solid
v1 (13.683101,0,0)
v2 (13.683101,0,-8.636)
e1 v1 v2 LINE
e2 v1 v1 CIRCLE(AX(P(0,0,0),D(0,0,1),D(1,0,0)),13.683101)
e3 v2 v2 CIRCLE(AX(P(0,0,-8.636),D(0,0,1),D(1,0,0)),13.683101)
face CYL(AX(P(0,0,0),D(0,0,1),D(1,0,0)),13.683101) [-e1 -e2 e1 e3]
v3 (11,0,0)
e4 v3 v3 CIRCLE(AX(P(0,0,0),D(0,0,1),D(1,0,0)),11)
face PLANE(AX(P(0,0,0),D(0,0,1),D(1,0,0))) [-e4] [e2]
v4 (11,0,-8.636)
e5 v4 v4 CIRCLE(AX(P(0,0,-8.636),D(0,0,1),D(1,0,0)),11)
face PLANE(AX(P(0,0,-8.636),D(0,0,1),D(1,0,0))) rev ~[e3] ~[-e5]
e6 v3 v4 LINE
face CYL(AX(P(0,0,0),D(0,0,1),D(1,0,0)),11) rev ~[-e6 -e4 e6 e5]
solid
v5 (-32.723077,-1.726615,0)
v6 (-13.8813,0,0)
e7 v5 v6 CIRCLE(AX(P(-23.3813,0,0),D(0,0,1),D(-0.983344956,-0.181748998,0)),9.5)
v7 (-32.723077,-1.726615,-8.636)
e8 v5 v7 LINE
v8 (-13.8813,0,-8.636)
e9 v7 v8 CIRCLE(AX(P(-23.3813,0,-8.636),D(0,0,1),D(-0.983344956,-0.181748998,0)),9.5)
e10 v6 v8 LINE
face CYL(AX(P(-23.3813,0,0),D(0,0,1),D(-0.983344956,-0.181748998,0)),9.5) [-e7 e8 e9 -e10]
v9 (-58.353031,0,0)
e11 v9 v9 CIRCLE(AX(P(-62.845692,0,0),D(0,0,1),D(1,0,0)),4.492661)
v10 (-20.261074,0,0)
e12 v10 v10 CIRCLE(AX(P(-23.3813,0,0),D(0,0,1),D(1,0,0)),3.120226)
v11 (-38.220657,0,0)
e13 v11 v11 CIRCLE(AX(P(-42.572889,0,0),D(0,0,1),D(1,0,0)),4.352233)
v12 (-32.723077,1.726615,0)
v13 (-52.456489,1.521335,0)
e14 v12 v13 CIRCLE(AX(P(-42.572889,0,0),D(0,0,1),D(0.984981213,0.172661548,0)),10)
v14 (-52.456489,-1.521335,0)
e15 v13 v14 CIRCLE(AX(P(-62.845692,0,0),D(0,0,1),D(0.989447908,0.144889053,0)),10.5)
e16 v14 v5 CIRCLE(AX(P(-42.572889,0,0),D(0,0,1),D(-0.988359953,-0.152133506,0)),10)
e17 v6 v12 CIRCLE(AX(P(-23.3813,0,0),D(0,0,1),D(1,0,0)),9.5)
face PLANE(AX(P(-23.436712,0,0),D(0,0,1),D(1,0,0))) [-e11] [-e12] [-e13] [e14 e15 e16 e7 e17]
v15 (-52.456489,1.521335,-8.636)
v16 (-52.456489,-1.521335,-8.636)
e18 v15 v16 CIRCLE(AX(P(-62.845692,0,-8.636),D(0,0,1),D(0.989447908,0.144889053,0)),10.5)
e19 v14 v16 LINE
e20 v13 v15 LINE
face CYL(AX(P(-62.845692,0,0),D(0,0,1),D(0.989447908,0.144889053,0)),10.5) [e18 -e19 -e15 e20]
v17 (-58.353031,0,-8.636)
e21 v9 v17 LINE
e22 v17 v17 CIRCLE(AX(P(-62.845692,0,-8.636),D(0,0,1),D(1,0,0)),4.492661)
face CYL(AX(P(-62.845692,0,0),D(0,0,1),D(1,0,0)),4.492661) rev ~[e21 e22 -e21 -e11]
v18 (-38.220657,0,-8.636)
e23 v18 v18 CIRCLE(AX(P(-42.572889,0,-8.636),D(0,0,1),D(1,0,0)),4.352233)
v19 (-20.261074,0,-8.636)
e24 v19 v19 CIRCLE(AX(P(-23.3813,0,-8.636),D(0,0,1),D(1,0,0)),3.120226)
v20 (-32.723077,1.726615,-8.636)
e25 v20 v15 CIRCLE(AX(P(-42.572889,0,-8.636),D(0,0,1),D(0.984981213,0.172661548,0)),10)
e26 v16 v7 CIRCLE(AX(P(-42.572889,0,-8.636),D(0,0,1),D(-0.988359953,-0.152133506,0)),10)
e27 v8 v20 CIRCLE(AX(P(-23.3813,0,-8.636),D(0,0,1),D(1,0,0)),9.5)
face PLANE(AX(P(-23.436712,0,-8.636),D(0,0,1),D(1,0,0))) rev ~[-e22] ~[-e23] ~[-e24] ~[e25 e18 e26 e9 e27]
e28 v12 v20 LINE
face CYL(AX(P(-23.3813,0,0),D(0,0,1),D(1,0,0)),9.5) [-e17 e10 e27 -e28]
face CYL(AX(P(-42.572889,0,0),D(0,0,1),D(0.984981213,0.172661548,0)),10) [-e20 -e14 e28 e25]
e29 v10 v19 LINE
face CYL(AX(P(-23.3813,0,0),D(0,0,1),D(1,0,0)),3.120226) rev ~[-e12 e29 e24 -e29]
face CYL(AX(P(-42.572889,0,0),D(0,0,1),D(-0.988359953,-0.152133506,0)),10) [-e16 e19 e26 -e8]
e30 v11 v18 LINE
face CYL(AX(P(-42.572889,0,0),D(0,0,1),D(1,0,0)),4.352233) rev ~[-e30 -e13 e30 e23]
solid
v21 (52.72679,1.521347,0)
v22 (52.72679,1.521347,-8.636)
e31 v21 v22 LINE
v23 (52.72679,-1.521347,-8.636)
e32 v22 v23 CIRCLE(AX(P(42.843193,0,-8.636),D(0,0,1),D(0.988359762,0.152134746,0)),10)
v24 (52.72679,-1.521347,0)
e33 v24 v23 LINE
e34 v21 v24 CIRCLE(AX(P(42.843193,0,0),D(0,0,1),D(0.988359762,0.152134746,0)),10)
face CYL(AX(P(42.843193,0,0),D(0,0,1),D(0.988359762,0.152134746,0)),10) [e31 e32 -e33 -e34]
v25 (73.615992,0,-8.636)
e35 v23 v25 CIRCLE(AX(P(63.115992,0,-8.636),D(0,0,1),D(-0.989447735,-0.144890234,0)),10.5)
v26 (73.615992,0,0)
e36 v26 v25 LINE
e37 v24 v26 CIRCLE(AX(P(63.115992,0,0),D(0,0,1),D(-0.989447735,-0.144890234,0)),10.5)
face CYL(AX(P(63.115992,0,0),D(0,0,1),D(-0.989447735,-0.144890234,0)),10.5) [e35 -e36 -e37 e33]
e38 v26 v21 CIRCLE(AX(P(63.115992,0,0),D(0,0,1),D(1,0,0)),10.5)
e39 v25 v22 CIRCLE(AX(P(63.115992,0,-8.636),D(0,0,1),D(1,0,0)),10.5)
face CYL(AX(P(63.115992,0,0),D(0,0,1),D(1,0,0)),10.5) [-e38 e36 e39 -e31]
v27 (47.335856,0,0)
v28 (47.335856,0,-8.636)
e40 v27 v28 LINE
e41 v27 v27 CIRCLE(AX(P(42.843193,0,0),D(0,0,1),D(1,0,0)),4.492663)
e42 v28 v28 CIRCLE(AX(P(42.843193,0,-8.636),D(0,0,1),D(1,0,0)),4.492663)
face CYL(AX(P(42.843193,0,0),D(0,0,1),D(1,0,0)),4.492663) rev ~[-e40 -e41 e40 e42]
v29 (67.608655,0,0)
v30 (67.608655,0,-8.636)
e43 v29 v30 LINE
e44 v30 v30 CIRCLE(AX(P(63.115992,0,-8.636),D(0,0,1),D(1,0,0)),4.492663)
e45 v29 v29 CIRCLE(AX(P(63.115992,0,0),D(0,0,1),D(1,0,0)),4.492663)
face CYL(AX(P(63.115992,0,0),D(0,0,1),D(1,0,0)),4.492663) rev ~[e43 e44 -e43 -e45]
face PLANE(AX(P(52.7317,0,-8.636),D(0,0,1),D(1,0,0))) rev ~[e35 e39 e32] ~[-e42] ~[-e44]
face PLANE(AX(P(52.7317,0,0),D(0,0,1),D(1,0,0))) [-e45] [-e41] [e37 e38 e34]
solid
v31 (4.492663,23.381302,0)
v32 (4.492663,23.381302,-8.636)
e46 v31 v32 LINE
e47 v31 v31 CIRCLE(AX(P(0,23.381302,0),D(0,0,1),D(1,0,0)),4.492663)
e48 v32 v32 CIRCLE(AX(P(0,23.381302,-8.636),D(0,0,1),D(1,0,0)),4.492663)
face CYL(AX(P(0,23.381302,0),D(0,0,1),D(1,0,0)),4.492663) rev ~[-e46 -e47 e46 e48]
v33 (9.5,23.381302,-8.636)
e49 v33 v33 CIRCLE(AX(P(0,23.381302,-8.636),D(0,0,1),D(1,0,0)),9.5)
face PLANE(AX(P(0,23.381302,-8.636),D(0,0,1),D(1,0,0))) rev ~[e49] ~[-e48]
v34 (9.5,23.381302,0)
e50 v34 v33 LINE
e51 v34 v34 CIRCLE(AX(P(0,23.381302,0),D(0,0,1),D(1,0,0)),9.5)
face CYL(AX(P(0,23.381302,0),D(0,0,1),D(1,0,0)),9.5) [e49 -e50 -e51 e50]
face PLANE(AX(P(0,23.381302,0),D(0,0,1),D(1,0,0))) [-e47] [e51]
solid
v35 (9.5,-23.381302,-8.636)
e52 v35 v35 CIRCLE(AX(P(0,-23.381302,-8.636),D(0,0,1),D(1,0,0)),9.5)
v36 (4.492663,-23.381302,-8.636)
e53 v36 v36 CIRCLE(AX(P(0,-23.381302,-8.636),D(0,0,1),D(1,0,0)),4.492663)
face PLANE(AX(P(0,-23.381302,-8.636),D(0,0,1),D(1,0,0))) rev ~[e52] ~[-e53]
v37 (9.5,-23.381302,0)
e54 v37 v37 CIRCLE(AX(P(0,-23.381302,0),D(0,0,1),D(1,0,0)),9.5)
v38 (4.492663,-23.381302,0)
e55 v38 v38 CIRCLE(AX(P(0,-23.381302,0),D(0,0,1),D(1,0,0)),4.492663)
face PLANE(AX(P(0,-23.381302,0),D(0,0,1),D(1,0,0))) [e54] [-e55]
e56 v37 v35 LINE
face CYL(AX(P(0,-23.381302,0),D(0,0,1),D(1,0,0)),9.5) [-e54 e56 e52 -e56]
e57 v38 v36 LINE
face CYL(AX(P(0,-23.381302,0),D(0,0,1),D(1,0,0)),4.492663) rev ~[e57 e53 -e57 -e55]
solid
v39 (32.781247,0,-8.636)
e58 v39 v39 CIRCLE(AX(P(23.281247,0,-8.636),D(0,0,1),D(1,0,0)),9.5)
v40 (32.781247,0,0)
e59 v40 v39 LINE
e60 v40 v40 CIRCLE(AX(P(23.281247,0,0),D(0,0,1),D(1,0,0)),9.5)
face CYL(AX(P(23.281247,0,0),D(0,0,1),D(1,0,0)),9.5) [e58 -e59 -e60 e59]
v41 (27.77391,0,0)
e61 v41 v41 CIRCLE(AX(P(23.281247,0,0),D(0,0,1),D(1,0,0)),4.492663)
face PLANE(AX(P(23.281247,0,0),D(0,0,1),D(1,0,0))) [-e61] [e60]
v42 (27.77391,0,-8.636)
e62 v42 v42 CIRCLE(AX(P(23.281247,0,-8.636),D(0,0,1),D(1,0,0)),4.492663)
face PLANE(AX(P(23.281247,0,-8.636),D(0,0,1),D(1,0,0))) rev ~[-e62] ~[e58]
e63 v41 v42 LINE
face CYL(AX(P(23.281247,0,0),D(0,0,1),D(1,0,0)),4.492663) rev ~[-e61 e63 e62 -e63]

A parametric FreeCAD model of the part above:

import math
import FreeCAD as App
import Part
import Sketcher
from FreeCAD import Vector
Q = App.Units.Quantity

doc = App.newDocument("Part")
params = doc.addObject("Spreadsheet::Sheet", "Params")
for row, (alias, value) in enumerate([
    ("sketch1_diameter", "22 mm"),
    ("pad1_length", "8.636 mm"),
    ("sketch2_diameter", "19 mm"),
    ("pad2_length", "8.636 mm"),
    ("sketch3_radius", "10 mm"),
    ("sketch3_radius2", "9.5 mm"),
    ("sketch3_radius3", "10.5 mm"),
    ("pad3_length", "8.636 mm"),
    ("sketch4_diameter", "19 mm"),
    ("pad4_length", "8.636 mm"),
    ("sketch5_diameter", "19 mm"),
    ("pad5_length", "8.636 mm"),
    ("sketch6_radius", "10 mm"),
    ("sketch6_radius2", "10.5 mm"),
    ("pad6_length", "8.636 mm"),
], start=1):
    params.set(f"A{row}", alias)
    params.set(f"B{row}", "=" + value)
    params.setAlias(f"B{row}", alias)

body = doc.addObject("PartDesign::Body", "Body")

# Sketch on XY plane
sketch1 = doc.addObject("Sketcher::SketchObject", "Sketch")
body.addObject(sketch1)
sketch1.AttachmentSupport = (doc.XY_Plane, [""])
sketch1.MapMode = "FlatFace"
sketch1.addGeometry([
    Part.Circle(Vector(0, 0, 0), Vector(0, 0, 1), 14),
    Part.Circle(Vector(0, 0, 0), Vector(0, 0, 1), 11),
], False)
sketch1.addConstraint([
    Sketcher.Constraint("Coincident", 0, 3, -1, 1),
    Sketcher.Constraint("Coincident", 1, 3, -1, 1),
    Sketcher.Constraint("Diameter", 1, Q("22 mm")),
    Sketcher.Constraint("Diameter", 0, Q("27.366202 mm")),
])
sketch1.setExpression("Constraints[2]", "Params.sketch1_diameter")
pad1 = doc.addObject("PartDesign::Pad", "Pad")
body.addObject(pad1)
pad1.Profile = sketch1
pad1.setExpression("Length", "Params.pad1_length")
pad1.Reversed = True
body2 = doc.addObject("PartDesign::Body", "Body001")

# Sketch on XY plane
sketch2 = doc.addObject("Sketcher::SketchObject", "Sketch001")
body2.addObject(sketch2)
sketch2.AttachmentSupport = (doc.getObject("XY_Plane001"), [""])
sketch2.MapMode = "FlatFace"
sketch2.addGeometry([
    Part.Circle(Vector(23.3, 0, 0), Vector(0, 0, 1), 9.5),
    Part.Circle(Vector(23.3, 0, 0), Vector(0, 0, 1), 4.5),
], False)
sketch2.addConstraint([
    Sketcher.Constraint("Coincident", 1, 3, 0, 3),
    Sketcher.Constraint("PointOnObject", 0, 3, -1),
    Sketcher.Constraint("Diameter", 0, Q("19 mm")),
    Sketcher.Constraint("Diameter", 1, Q("8.985326 mm")),
    Sketcher.Constraint("DistanceX", -1, 1, 0, 3, Q("23.281247 mm")),
])
sketch2.setExpression("Constraints[2]", "Params.sketch2_diameter")
pad2 = doc.addObject("PartDesign::Pad", "Pad001")
body2.addObject(pad2)
pad2.Profile = sketch2
pad2.setExpression("Length", "Params.pad2_length")
pad2.Reversed = True
body3 = doc.addObject("PartDesign::Body", "Body002")

# Sketch on XY plane
sketch3 = doc.addObject("Sketcher::SketchObject", "Sketch002")
body3.addObject(sketch3)
sketch3.AttachmentSupport = (doc.getObject("XY_Plane002"), [""])
sketch3.MapMode = "FlatFace"
sketch3.addGeometry([
    Part.ArcOfCircle(Part.Circle(Vector(-23.4, 0, 0), Vector(0, 0, 1), 9.5), math.radians(-170), math.radians(0)),  # 0
    Part.ArcOfCircle(Part.Circle(Vector(-23.4, 0, 0), Vector(0, 0, 1), 9.5), math.radians(0), math.radians(170)),  # 1
    Part.ArcOfCircle(Part.Circle(Vector(-42.6, 0, 0), Vector(0, 0, 1), 10), math.radians(10), math.radians(171)),  # 2
    Part.ArcOfCircle(Part.Circle(Vector(-62.8, 0, 0), Vector(0, 0, 1), 10.5), math.radians(8), math.radians(352)),  # 3
    Part.ArcOfCircle(Part.Circle(Vector(-42.6, 0, 0), Vector(0, 0, 1), 10), math.radians(-171), math.radians(-10)),  # 4
    Part.Circle(Vector(-62.8, 0, 0), Vector(0, 0, 1), 4.5),  # 5
    Part.Circle(Vector(-42.6, 0, 0), Vector(0, 0, 1), 4.4),  # 6
    Part.Circle(Vector(-23.4, 0, 0), Vector(0, 0, 1), 3.1),  # 7
], False)
sketch3.addConstraint([
    Sketcher.Constraint("Tangent", 0, 2, 1, 1),
    Sketcher.Constraint("Coincident", 1, 2, 2, 1),
    Sketcher.Constraint("Coincident", 2, 2, 3, 1),
    Sketcher.Constraint("Coincident", 3, 2, 4, 1),
    Sketcher.Constraint("Coincident", 4, 2, 0, 1),
    Sketcher.Constraint("Coincident", 4, 3, 2, 3),
    Sketcher.Constraint("Coincident", 5, 3, 3, 3),
    Sketcher.Constraint("Coincident", 6, 3, 2, 3),
    Sketcher.Constraint("Coincident", 7, 3, 0, 3),
    Sketcher.Constraint("Equal", 0, 1),
    Sketcher.Constraint("Equal", 2, 4),
    Sketcher.Constraint("Symmetric", 2, 2, 3, 2, -1),
    Sketcher.Constraint("PointOnObject", 0, 3, -1),
    Sketcher.Constraint("PointOnObject", 0, 2, -1),
    Sketcher.Constraint("Radius", 2, Q("10 mm")),
    Sketcher.Constraint("Radius", 0, Q("9.5 mm")),
    Sketcher.Constraint("Radius", 3, Q("10.5 mm")),
    Sketcher.Constraint("Diameter", 5, Q("8.985323 mm")),
    Sketcher.Constraint("Diameter", 6, Q("8.704465 mm")),
    Sketcher.Constraint("Diameter", 7, Q("6.240453 mm")),
    Sketcher.Constraint("DistanceX", 0, 3, -1, 1, Q("23.3813 mm")),
    Sketcher.Constraint("DistanceX", 2, 2, 2, 3, Q("9.8836 mm")),
    Sketcher.Constraint("DistanceX", 2, 3, -1, 1, Q("42.572889 mm")),
])
sketch3.setExpression("Constraints[14]", "Params.sketch3_radius")
sketch3.setExpression("Constraints[15]", "Params.sketch3_radius2")
sketch3.setExpression("Constraints[16]", "Params.sketch3_radius3")
pad3 = doc.addObject("PartDesign::Pad", "Pad002")
body3.addObject(pad3)
pad3.Profile = sketch3
pad3.setExpression("Length", "Params.pad3_length")
pad3.Reversed = True
body4 = doc.addObject("PartDesign::Body", "Body003")

# Sketch on XY plane
sketch4 = doc.addObject("Sketcher::SketchObject", "Sketch003")
body4.addObject(sketch4)
sketch4.AttachmentSupport = (doc.getObject("XY_Plane003"), [""])
sketch4.MapMode = "FlatFace"
sketch4.addGeometry([
    Part.Circle(Vector(0, 23.4, 0), Vector(0, 0, 1), 9.5),
    Part.Circle(Vector(0, 23.4, 0), Vector(0, 0, 1), 4.5),
], False)
sketch4.addConstraint([
    Sketcher.Constraint("Coincident", 1, 3, 0, 3),
    Sketcher.Constraint("PointOnObject", 0, 3, -2),
    Sketcher.Constraint("Diameter", 0, Q("19 mm")),
    Sketcher.Constraint("Diameter", 1, Q("8.985326 mm")),
    Sketcher.Constraint("DistanceY", -1, 1, 0, 3, Q("23.381302 mm")),
])
sketch4.setExpression("Constraints[2]", "Params.sketch4_diameter")
pad4 = doc.addObject("PartDesign::Pad", "Pad003")
body4.addObject(pad4)
pad4.Profile = sketch4
pad4.setExpression("Length", "Params.pad4_length")
pad4.Reversed = True
body5 = doc.addObject("PartDesign::Body", "Body004")

# Sketch on XY plane
sketch5 = doc.addObject("Sketcher::SketchObject", "Sketch004")
body5.addObject(sketch5)
sketch5.AttachmentSupport = (doc.getObject("XY_Plane004"), [""])
sketch5.MapMode = "FlatFace"
sketch5.addGeometry([
    Part.Circle(Vector(0, -23.4, 0), Vector(0, 0, 1), 9.5),
    Part.Circle(Vector(0, -23.4, 0), Vector(0, 0, 1), 4.5),
], False)
sketch5.addConstraint([
    Sketcher.Constraint("Coincident", 1, 3, 0, 3),
    Sketcher.Constraint("PointOnObject", 0, 3, -2),
    Sketcher.Constraint("Diameter", 0, Q("19 mm")),
    Sketcher.Constraint("Diameter", 1, Q("8.985326 mm")),
    Sketcher.Constraint("DistanceY", 0, 3, -1, 1, Q("23.381302 mm")),
])
sketch5.setExpression("Constraints[2]", "Params.sketch5_diameter")
pad5 = doc.addObject("PartDesign::Pad", "Pad004")
body5.addObject(pad5)
pad5.Profile = sketch5
pad5.setExpression("Length", "Params.pad5_length")
pad5.Reversed = True
body6 = doc.addObject("PartDesign::Body", "Body005")

# Sketch on XY plane
sketch6 = doc.addObject("Sketcher::SketchObject", "Sketch005")
body6.addObject(sketch6)
sketch6.AttachmentSupport = (doc.getObject("XY_Plane005"), [""])
sketch6.MapMode = "FlatFace"
sketch6.addGeometry([
    Part.ArcOfCircle(Part.Circle(Vector(63.1, 0, 0), Vector(0, 0, 1), 10.5), math.radians(0), math.radians(172)),  # 0
    Part.ArcOfCircle(Part.Circle(Vector(42.8, 0, 0), Vector(0, 0, 1), 10), math.radians(9), math.radians(351)),  # 1
    Part.ArcOfCircle(Part.Circle(Vector(63.1, 0, 0), Vector(0, 0, 1), 10.5), math.radians(-172), math.radians(0)),  # 2
    Part.Circle(Vector(42.8, 0, 0), Vector(0, 0, 1), 4.5),  # 3
    Part.Circle(Vector(63.1, 0, 0), Vector(0, 0, 1), 4.5),  # 4
], False)
sketch6.addConstraint([
    Sketcher.Constraint("Coincident", 0, 2, 1, 1),
    Sketcher.Constraint("Coincident", 1, 2, 2, 1),
    Sketcher.Constraint("Tangent", 2, 2, 0, 1),
    Sketcher.Constraint("Coincident", 3, 3, 1, 3),
    Sketcher.Constraint("Coincident", 4, 3, 0, 3),
    Sketcher.Constraint("Equal", 0, 2),
    Sketcher.Constraint("Equal", 3, 4),
    Sketcher.Constraint("Symmetric", 0, 2, 1, 2, -1),
    Sketcher.Constraint("PointOnObject", 2, 2, -1),
    Sketcher.Constraint("Radius", 1, Q("10 mm")),
    Sketcher.Constraint("Radius", 0, Q("10.5 mm")),
    Sketcher.Constraint("Diameter", 3, Q("8.985326 mm")),
    Sketcher.Constraint("DistanceX", 1, 3, 0, 3, Q("20.272799 mm")),
    Sketcher.Constraint("DistanceX", -1, 1, 0, 3, Q("63.115992 mm")),
])
sketch6.setExpression("Constraints[9]", "Params.sketch6_radius")
sketch6.setExpression("Constraints[10]", "Params.sketch6_radius2")
pad6 = doc.addObject("PartDesign::Pad", "Pad005")
body6.addObject(pad6)
pad6.Profile = sketch6
pad6.setExpression("Length", "Params.pad6_length")
pad6.Reversed = True

doc.recompute()
